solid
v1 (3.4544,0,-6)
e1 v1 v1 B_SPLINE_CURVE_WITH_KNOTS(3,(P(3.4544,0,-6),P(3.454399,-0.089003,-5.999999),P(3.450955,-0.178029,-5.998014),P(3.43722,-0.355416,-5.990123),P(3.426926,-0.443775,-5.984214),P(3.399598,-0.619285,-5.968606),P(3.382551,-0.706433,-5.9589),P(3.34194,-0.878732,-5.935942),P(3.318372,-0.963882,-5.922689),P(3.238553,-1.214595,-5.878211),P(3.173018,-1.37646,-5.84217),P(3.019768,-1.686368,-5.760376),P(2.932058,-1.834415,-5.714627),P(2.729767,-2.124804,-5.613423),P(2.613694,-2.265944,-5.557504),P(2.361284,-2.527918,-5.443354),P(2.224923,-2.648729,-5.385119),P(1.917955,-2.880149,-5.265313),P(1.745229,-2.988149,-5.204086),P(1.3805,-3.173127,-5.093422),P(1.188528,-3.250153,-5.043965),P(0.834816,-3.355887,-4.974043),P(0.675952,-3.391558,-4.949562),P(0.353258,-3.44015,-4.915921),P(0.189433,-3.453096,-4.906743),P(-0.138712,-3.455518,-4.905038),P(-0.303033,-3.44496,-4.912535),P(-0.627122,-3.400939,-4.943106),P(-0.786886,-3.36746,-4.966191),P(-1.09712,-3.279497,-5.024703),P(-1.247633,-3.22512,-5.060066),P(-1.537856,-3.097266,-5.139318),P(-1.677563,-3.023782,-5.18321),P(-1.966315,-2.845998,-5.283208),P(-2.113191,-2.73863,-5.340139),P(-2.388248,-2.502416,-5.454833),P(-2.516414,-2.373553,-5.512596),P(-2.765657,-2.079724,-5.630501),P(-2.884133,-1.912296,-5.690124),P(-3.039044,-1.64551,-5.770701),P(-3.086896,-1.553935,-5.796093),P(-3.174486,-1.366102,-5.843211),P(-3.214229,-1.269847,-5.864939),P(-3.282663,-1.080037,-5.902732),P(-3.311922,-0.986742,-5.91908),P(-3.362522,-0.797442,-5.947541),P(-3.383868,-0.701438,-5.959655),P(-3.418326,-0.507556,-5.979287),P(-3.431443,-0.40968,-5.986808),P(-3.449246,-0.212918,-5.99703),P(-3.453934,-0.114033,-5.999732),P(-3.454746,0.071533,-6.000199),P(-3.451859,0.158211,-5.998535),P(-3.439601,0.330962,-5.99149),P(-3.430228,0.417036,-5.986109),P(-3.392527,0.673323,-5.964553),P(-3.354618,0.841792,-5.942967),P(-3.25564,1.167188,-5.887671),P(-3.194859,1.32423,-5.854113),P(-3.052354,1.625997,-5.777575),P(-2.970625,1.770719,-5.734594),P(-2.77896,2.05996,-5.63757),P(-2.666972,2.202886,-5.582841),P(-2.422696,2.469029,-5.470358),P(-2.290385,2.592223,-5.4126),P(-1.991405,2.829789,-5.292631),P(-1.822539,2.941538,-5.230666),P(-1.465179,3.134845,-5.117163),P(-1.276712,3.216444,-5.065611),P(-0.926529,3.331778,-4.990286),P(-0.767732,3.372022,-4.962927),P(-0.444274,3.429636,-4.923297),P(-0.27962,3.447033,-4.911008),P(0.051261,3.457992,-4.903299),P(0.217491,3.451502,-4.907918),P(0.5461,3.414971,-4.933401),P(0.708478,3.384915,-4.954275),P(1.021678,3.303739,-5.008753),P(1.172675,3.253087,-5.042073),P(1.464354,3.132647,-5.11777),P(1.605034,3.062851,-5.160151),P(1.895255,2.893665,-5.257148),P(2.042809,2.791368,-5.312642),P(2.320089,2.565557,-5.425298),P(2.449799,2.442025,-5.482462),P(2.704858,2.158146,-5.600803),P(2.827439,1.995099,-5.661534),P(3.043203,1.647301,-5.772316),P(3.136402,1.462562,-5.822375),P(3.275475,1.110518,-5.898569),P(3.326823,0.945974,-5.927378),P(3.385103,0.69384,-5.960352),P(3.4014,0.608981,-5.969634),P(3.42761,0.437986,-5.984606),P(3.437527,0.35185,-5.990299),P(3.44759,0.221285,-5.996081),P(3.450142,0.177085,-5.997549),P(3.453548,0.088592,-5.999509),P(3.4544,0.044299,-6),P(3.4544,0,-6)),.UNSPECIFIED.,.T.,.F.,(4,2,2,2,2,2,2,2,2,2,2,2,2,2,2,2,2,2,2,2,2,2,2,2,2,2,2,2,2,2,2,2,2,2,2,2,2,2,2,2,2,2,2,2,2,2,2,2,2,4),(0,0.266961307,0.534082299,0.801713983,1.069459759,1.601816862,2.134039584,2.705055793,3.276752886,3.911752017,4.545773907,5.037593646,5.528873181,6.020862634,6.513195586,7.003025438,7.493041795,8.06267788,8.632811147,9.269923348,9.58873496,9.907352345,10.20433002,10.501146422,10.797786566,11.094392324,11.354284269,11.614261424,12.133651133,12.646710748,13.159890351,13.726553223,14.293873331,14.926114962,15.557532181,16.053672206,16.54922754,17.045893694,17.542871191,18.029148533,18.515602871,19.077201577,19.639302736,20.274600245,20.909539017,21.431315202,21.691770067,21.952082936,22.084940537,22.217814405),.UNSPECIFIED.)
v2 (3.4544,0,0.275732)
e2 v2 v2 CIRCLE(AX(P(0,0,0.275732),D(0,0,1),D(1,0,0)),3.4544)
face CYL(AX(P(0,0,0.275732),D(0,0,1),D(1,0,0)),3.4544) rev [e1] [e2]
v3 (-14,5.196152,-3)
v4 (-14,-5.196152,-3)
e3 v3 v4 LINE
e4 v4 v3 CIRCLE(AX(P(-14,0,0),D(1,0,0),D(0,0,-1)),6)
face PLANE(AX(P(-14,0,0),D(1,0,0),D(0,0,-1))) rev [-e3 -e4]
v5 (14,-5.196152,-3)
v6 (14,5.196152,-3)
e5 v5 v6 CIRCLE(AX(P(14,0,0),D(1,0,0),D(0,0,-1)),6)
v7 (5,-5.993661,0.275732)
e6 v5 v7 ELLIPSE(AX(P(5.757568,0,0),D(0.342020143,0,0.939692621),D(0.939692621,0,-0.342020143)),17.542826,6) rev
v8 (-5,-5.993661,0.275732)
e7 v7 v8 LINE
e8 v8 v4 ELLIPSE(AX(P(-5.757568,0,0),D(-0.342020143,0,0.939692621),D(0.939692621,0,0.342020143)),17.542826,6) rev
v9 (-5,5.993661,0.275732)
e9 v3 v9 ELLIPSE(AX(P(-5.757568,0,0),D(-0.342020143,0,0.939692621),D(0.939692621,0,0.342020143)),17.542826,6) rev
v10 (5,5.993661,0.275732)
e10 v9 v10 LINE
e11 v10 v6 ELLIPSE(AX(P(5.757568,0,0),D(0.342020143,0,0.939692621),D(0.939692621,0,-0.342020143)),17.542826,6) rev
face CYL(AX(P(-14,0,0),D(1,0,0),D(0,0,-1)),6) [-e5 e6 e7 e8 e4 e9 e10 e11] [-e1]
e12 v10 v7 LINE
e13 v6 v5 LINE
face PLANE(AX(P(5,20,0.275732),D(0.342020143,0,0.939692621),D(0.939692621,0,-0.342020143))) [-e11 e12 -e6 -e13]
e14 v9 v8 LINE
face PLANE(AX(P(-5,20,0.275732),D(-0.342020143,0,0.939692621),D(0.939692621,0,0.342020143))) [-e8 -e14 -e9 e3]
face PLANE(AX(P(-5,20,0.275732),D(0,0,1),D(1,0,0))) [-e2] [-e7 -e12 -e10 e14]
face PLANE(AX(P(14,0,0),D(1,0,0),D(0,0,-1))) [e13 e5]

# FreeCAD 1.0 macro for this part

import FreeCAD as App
import Part
import Sketcher
from FreeCAD import Vector
Q = App.Units.Quantity

doc = App.newDocument("Part")
body = doc.addObject("PartDesign::Body", "Body")

# Sketch on YZ plane
sketch1 = body.newObject("Sketcher::SketchObject", "Sketch")
sketch1.AttachmentSupport = (doc.getObject("YZ_Plane"), [""])
sketch1.MapMode = "FlatFace"
sketch1.AttachmentOffset = App.Placement(Vector(0, 0, -14), App.Rotation())
sketch1.addGeometry(Part.Circle(Vector(0, 0, 0), Vector(0, 0, 1), 6), False)
sketch1.addConstraint([
    Sketcher.Constraint("Coincident", 0, 3, -1, 1),
    Sketcher.Constraint("Diameter", 0, Q("12 mm")),
])
pad1 = body.newObject("PartDesign::Pad", "Pad")
pad1.Profile = sketch1
pad1.Length = 28

# Sketch on XZ plane
sketch2 = body.newObject("Sketcher::SketchObject", "Sketch001")
sketch2.AttachmentSupport = (doc.getObject("XZ_Plane"), [""])
sketch2.MapMode = "FlatFace"
sketch2.addGeometry([
    Part.LineSegment(Vector(5, 0, 0), Vector(-5, 0, 0)),  # 0
    Part.LineSegment(Vector(-5, 0, 0), Vector(-14, -3, 0)),  # 1
    Part.LineSegment(Vector(-14, -3, 0), Vector(-26, -3, 0)),  # 2
    Part.LineSegment(Vector(-26, -3, 0), Vector(-26, 17, 0)),  # 3
    Part.LineSegment(Vector(-26, 17, 0), Vector(25, 17, 0)),  # 4
    Part.LineSegment(Vector(25, 17, 0), Vector(25, -3, 0)),  # 5
    Part.LineSegment(Vector(25, -3, 0), Vector(14, -3, 0)),  # 6
    Part.LineSegment(Vector(14, -3, 0), Vector(5, 0, 0)),  # 7
], False)
sketch2.addConstraint([
    Sketcher.Constraint("Coincident", 0, 2, 1, 1),
    Sketcher.Constraint("Coincident", 1, 2, 2, 1),
    Sketcher.Constraint("Coincident", 2, 2, 3, 1),
    Sketcher.Constraint("Coincident", 3, 2, 4, 1),
    Sketcher.Constraint("Coincident", 4, 2, 5, 1),
    Sketcher.Constraint("Coincident", 5, 2, 6, 1),
    Sketcher.Constraint("Coincident", 6, 2, 7, 1),
    Sketcher.Constraint("Coincident", 7, 2, 0, 1),
    Sketcher.Constraint("Horizontal", 0),
    Sketcher.Constraint("Horizontal", 2),
    Sketcher.Constraint("Vertical", 3),
    Sketcher.Constraint("Horizontal", 4),
    Sketcher.Constraint("Vertical", 5),
    Sketcher.Constraint("Horizontal", 6),
    Sketcher.Constraint("Symmetric", 1, 2, 6, 2, -2),
    Sketcher.Constraint("Equal", 1, 7),
    Sketcher.Constraint("DistanceX", 0, 2, 0, 1, Q("10 mm")),
    Sketcher.Constraint("Angle", 1, Q("-160 deg")),
    Sketcher.Constraint("DistanceX", 1, 2, -1, 1, Q("14 mm")),
    Sketcher.Constraint("DistanceY", 1, 2, -1, 1, Q("3 mm")),
    Sketcher.Constraint("DistanceX", 2, 2, 2, 1, Q("11.590689 mm")),
    Sketcher.Constraint("DistanceX", 4, 1, 4, 2, Q("51.048855 mm")),
    Sketcher.Constraint("DistanceY", 3, 1, 3, 2, Q("19.524353 mm")),
])
pocket1 = body.newObject("PartDesign::Pocket", "Pocket")
pocket1.Profile = sketch2
pocket1.Type = "ThroughAll"
pocket1.Midplane = True

# Sketch on XY plane
sketch3 = body.newObject("Sketcher::SketchObject", "Sketch002")
sketch3.AttachmentSupport = (doc.getObject("XY_Plane"), [""])
sketch3.MapMode = "FlatFace"
sketch3.AttachmentOffset = App.Placement(Vector(0, 0, 0.275732), App.Rotation())
sketch3.addGeometry(Part.Circle(Vector(0, 0, 0), Vector(0, 0, 1), 3.5), False)
sketch3.addConstraint([
    Sketcher.Constraint("Coincident", 0, 3, -1, 1),
    Sketcher.Constraint("Diameter", 0, Q("6.9088 mm")),
])
doc.recompute()
hole = body.newObject("PartDesign::Hole", "Hole")
hole.Profile = sketch3
hole.ThreadType = "None"
hole.Diameter = 6.9088
hole.DepthType = "ThroughAll"

doc.recompute()
